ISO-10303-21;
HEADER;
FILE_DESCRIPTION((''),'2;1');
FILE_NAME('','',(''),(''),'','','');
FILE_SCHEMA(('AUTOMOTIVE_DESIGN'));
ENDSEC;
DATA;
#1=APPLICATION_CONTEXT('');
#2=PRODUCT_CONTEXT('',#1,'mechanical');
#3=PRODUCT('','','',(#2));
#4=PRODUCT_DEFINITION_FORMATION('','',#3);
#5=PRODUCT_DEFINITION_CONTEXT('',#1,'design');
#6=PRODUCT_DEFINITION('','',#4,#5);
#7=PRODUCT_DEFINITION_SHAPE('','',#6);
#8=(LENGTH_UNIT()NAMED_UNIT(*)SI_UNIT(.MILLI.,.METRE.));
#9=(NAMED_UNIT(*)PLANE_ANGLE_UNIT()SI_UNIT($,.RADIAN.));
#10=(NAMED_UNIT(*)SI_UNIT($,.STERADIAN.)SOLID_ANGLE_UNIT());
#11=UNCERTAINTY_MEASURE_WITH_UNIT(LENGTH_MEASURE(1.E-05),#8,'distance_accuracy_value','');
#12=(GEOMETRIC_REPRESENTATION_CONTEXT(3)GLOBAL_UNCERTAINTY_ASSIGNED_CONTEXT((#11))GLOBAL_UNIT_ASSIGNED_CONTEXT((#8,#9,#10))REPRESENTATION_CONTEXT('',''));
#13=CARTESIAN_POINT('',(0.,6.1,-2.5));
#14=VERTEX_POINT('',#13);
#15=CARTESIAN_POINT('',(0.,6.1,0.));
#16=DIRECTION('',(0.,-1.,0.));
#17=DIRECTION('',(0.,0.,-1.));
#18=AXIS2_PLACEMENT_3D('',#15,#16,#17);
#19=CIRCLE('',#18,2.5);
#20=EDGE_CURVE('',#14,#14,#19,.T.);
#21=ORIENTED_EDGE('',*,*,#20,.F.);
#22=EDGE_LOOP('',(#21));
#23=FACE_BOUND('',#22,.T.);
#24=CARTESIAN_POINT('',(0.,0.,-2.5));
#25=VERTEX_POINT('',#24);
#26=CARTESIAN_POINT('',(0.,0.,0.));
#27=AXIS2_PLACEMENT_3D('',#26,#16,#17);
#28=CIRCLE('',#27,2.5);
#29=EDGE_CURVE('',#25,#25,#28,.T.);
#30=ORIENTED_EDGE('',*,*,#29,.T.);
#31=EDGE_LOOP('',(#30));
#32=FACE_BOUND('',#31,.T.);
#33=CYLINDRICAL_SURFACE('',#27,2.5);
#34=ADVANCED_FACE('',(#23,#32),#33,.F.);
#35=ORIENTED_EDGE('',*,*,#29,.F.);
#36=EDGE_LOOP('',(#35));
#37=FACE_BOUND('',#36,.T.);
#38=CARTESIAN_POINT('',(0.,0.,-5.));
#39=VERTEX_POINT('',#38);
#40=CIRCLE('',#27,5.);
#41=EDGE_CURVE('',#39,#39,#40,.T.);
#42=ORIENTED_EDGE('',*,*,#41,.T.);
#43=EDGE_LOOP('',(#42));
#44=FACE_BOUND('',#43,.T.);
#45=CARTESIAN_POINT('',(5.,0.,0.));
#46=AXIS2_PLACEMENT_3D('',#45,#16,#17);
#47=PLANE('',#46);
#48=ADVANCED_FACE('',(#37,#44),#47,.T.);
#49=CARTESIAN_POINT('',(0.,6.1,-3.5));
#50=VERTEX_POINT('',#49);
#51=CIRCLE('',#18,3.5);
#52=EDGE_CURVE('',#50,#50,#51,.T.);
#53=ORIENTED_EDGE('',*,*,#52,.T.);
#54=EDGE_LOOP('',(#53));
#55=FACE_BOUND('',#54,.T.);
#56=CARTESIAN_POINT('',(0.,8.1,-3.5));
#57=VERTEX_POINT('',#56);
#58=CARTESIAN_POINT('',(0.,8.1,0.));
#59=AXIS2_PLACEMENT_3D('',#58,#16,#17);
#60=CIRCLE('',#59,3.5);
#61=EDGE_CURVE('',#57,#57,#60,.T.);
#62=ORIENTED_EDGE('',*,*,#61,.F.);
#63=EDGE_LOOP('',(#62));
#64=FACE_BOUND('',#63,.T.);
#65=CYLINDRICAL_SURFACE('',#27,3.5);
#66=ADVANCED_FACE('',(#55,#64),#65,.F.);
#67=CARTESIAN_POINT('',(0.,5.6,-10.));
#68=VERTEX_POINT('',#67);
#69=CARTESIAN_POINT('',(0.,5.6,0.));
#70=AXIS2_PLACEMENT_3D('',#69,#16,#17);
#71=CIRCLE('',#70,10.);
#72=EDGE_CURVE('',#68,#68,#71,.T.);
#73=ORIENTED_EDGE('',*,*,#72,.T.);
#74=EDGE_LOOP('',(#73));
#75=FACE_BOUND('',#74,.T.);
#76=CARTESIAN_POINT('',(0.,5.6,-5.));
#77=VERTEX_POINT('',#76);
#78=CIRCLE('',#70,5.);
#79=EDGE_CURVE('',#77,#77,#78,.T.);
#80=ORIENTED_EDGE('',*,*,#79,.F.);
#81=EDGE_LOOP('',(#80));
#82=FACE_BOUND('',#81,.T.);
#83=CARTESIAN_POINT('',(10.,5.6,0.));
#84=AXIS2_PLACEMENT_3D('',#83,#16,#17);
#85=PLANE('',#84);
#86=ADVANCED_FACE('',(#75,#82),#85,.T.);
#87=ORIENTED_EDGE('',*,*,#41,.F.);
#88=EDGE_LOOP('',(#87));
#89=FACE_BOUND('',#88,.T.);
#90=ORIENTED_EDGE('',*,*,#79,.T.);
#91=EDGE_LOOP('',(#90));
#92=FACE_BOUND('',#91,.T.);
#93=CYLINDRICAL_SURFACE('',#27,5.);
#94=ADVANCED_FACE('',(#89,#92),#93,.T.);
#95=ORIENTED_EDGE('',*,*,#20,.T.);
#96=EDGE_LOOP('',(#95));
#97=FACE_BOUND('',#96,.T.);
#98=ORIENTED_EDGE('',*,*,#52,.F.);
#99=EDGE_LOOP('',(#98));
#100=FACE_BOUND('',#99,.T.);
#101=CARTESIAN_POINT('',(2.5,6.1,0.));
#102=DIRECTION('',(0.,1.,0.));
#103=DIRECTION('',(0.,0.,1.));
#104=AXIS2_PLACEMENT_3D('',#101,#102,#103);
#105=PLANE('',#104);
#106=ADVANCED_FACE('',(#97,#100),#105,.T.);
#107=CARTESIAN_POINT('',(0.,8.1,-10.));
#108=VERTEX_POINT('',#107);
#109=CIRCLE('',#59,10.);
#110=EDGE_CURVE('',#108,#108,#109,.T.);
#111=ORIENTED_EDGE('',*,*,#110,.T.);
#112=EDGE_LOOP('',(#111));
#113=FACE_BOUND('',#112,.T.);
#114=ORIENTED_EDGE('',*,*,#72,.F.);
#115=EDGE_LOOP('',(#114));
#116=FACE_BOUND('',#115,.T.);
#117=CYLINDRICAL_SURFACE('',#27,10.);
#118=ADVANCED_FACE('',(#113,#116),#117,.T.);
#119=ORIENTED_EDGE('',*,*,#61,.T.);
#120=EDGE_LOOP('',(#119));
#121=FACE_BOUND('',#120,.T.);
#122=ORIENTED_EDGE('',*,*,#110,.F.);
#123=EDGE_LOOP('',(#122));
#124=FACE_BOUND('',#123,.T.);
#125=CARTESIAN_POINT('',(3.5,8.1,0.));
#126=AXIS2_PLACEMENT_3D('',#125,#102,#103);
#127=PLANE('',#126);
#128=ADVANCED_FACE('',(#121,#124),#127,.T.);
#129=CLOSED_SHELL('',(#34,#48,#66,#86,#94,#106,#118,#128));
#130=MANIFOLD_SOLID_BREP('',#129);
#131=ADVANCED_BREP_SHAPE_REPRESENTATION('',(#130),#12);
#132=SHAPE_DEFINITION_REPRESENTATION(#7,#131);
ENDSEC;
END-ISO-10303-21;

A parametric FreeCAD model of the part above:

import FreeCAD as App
import Part
import Sketcher

V = App.Vector


def add_polygon(sketch, points):
    """Adds a closed chain of lines whose ends are joined by coincident constraints."""
    first, n = sketch.GeometryCount, len(points)
    for a, b in zip(points, points[1:] + points[:1]):
        sketch.addGeometry(Part.LineSegment(App.Vector(*a, 0), App.Vector(*b, 0)), False)
    for i in range(n):
        sketch.addConstraint(Sketcher.Constraint("Coincident", first + i, 2, first + (i + 1) % n, 1))

doc = App.newDocument("Part")
body = doc.addObject("PartDesign::Body", "Body")

sketch1 = body.newObject("Sketcher::SketchObject", "Sketch")
sketch1.AttachmentSupport = (doc.getObject("XY_Plane"), [""])
sketch1.MapMode = "FlatFace"
add_polygon(sketch1, [(3.5, 6.1), (2.5, 6.1), (2.5, 0), (5, 0), (5, 5.6), (10, 5.6), (10, 8.1), (3.5, 8.1)])
sketch1.addConstraint(Sketcher.Constraint("Horizontal", 0))
sketch1.addConstraint(Sketcher.Constraint("Vertical", 1))
sketch1.addConstraint(Sketcher.Constraint("Horizontal", 2))
sketch1.addConstraint(Sketcher.Constraint("Vertical", 3))
sketch1.addConstraint(Sketcher.Constraint("Horizontal", 4))
sketch1.addConstraint(Sketcher.Constraint("Vertical", 5))
sketch1.addConstraint(Sketcher.Constraint("Horizontal", 6))
sketch1.addConstraint(Sketcher.Constraint("Vertical", 7))
sketch1.addConstraint(Sketcher.Constraint("PointOnObject", 1, 2, -1))
sketch1.addConstraint(Sketcher.Constraint("Equal", 2, 5))
sketch1.addConstraint(Sketcher.Constraint("DistanceX", 0, 2, 0, 1, 1.0))
sketch1.addConstraint(Sketcher.Constraint("DistanceX", 4, 1, 4, 2, 5.0))
sketch1.addConstraint(Sketcher.Constraint("DistanceY", 7, 2, 7, 1, 2.0))
sketch1.addConstraint(Sketcher.Constraint("DistanceX", 2, 1, 2, 2, 2.5))
sketch1.addConstraint(Sketcher.Constraint("DistanceY", 1, 2, 1, 1, 6.1))
sketch1.addConstraint(Sketcher.Constraint("DistanceX", -1, 1, 2, 2, 5.0))
revolution = body.newObject("PartDesign::Revolution", "Revolution")
revolution.Profile = sketch1
revolution.ReferenceAxis = (sketch1, ["V_Axis"])
revolution.Angle = 360

doc.recompute()
